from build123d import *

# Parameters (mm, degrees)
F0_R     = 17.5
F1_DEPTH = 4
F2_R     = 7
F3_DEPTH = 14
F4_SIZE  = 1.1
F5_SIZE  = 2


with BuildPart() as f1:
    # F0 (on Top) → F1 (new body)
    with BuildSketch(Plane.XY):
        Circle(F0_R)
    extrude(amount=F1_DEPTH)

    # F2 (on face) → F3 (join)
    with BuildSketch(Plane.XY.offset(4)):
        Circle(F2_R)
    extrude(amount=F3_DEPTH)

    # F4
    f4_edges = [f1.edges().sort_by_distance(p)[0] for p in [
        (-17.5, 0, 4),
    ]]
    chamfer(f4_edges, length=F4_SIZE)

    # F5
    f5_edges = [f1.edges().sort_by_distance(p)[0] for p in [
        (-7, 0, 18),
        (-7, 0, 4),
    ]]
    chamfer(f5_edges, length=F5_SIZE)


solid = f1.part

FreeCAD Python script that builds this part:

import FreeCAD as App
import Part
import Sketcher


def edges_at(feature, points):
    """Names of the edges that pass closest to the given points."""
    edges = feature.Shape.Edges
    near = lambda p: min(range(len(edges)), key=lambda i: edges[i].distToShape(Part.Vertex(*p))[0])
    return sorted({f"Edge{near(p) + 1}" for p in points})

doc = App.newDocument("Part")
body = doc.addObject("PartDesign::Body", "Body")

sketch1 = body.newObject("Sketcher::SketchObject", "Sketch")
sketch1.AttachmentSupport = (doc.getObject("XY_Plane"), [""])
sketch1.MapMode = "FlatFace"
sketch1.addGeometry(Part.Circle(App.Vector(0, 0, 0), App.Vector(0, 0, 1), 18), False)
sketch1.addConstraint([
    Sketcher.Constraint("Coincident", 0, 3, -1, 1),
    Sketcher.Constraint("Diameter", 0, 35.0),
])
pad1 = body.newObject("PartDesign::Pad", "Pad")
pad1.Profile = sketch1
pad1.Length = 4

sketch2 = body.newObject("Sketcher::SketchObject", "Sketch001")
sketch2.AttachmentSupport = (doc.getObject("XY_Plane"), [""])
sketch2.MapMode = "FlatFace"
sketch2.AttachmentOffset = App.Placement(App.Vector(0, 0, 4), App.Rotation())
sketch2.addGeometry(Part.Circle(App.Vector(0, 0, 0), App.Vector(0, 0, 1), 7), False)
sketch2.addConstraint([
    Sketcher.Constraint("Coincident", 0, 3, -1, 1),
    Sketcher.Constraint("Diameter", 0, 14.0),
])
pad2 = body.newObject("PartDesign::Pad", "Pad001")
pad2.Profile = sketch2
pad2.Length = 14
doc.recompute()

chamfer = body.newObject("PartDesign::Chamfer", "Chamfer")
chamfer.Base = (pad2, edges_at(pad2, [(-17.5, 0, 4)]))
chamfer.Size = 1.1
doc.recompute()

chamfer2 = body.newObject("PartDesign::Chamfer", "Chamfer001")
chamfer2.Base = (chamfer, edges_at(chamfer, [(-7, 0, 18), (-7, 0, 4)]))
chamfer2.Size = 2

doc.recompute()
